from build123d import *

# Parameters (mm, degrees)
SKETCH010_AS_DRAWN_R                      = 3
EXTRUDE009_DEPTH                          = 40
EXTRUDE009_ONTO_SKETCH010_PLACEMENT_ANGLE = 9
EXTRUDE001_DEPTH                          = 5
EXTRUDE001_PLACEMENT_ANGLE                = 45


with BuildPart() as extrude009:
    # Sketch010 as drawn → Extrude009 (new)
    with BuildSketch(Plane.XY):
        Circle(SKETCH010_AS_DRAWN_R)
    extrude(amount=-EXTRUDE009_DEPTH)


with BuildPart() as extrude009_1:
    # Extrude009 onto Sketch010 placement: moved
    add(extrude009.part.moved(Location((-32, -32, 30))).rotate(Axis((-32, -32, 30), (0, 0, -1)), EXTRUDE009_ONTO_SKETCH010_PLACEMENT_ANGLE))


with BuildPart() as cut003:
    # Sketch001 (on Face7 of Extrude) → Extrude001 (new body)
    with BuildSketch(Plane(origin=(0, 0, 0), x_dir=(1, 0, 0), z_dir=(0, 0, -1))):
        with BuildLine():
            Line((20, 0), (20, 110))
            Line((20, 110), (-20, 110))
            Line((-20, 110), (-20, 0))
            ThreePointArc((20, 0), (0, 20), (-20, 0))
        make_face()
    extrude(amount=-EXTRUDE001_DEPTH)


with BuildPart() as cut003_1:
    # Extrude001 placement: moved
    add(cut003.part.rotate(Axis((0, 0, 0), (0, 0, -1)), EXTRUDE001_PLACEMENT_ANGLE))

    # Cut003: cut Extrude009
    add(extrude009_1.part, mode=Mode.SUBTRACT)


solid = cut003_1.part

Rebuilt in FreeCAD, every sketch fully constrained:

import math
import FreeCAD as App
import Part
import Sketcher

doc = App.newDocument("Part")
body = doc.addObject("PartDesign::Body", "Body")

# Sketch on XY plane
sketch1 = body.newObject("Sketcher::SketchObject", "Sketch")
sketch1.AttachmentSupport = (doc.getObject("XY_Plane"), [""])
sketch1.MapMode = "FlatFace"
sketch1.addGeometry(Part.Circle(App.Vector(0, 0, 0), App.Vector(0, 0, 1), 3), False)
sketch1.addConstraint(Sketcher.Constraint("Coincident", 0, 3, -1, 1))
sketch1.addConstraint(Sketcher.Constraint("Diameter", 0, 6.0))
pad1 = body.newObject("PartDesign::Pad", "Pad")
pad1.Profile = sketch1
pad1.Length = 40
pad1.Reversed = True
body2 = doc.addObject("PartDesign::Body", "Body001")
doc.recompute()

body.Placement = App.Placement(App.Vector(-32, -32, 30), App.Rotation(App.Vector(0, 0, -1), 9))
boolean = body2.newObject("PartDesign::Boolean", "Boolean")
boolean.Type = "Fuse"
boolean.addObjects([body])
body3 = doc.addObject("PartDesign::Body", "Body002")

# Sketch on XY plane
sketch2 = body3.newObject("Sketcher::SketchObject", "Sketch001")
sketch2.AttachmentSupport = (doc.getObject("XY_Plane002"), [""])
sketch2.MapMode = "FlatFace"
sketch2.addGeometry(Part.LineSegment(App.Vector(20, 0, 0), App.Vector(20, -110, 0)), False)
sketch2.addGeometry(Part.LineSegment(App.Vector(20, -110, 0), App.Vector(-20, -110, 0)), False)
sketch2.addGeometry(Part.LineSegment(App.Vector(-20, -110, 0), App.Vector(-20, 0, 0)), False)
sketch2.addGeometry(Part.ArcOfCircle(Part.Circle(App.Vector(0, 0, 0), App.Vector(0, 0, 1), 20), math.radians(180), math.radians(360)), False)
sketch2.addConstraint(Sketcher.Constraint("Coincident", 0, 2, 1, 1))
sketch2.addConstraint(Sketcher.Constraint("Coincident", 1, 2, 2, 1))
sketch2.addConstraint(Sketcher.Constraint("Tangent", 2, 2, 3, 1))
sketch2.addConstraint(Sketcher.Constraint("Tangent", 3, 2, 0, 1))
sketch2.addConstraint(Sketcher.Constraint("Vertical", 0))
sketch2.addConstraint(Sketcher.Constraint("Horizontal", 1))
sketch2.addConstraint(Sketcher.Constraint("Vertical", 2))
sketch2.addConstraint(Sketcher.Constraint("Coincident", 3, 3, -1, 1))
sketch2.addConstraint(Sketcher.Constraint("Radius", 3, 20.0))
sketch2.addConstraint(Sketcher.Constraint("DistanceY", 0, 2, 0, 1, 110.0))
pad2 = body3.newObject("PartDesign::Pad", "Pad001")
pad2.Profile = sketch2
pad2.Length = 5
body4 = doc.addObject("PartDesign::Body", "Body003")
doc.recompute()

body3.Placement = App.Placement(App.Vector(0, 0, 0), App.Rotation(App.Vector(0, 0, -1), 45))
boolean2 = body4.newObject("PartDesign::Boolean", "Boolean001")
boolean2.Type = "Fuse"
boolean2.addObjects([body3])
doc.recompute()

boolean3 = body4.newObject("PartDesign::Boolean", "Boolean002")
boolean3.Type = "Cut"
boolean3.addObjects([body2])

doc.recompute()
